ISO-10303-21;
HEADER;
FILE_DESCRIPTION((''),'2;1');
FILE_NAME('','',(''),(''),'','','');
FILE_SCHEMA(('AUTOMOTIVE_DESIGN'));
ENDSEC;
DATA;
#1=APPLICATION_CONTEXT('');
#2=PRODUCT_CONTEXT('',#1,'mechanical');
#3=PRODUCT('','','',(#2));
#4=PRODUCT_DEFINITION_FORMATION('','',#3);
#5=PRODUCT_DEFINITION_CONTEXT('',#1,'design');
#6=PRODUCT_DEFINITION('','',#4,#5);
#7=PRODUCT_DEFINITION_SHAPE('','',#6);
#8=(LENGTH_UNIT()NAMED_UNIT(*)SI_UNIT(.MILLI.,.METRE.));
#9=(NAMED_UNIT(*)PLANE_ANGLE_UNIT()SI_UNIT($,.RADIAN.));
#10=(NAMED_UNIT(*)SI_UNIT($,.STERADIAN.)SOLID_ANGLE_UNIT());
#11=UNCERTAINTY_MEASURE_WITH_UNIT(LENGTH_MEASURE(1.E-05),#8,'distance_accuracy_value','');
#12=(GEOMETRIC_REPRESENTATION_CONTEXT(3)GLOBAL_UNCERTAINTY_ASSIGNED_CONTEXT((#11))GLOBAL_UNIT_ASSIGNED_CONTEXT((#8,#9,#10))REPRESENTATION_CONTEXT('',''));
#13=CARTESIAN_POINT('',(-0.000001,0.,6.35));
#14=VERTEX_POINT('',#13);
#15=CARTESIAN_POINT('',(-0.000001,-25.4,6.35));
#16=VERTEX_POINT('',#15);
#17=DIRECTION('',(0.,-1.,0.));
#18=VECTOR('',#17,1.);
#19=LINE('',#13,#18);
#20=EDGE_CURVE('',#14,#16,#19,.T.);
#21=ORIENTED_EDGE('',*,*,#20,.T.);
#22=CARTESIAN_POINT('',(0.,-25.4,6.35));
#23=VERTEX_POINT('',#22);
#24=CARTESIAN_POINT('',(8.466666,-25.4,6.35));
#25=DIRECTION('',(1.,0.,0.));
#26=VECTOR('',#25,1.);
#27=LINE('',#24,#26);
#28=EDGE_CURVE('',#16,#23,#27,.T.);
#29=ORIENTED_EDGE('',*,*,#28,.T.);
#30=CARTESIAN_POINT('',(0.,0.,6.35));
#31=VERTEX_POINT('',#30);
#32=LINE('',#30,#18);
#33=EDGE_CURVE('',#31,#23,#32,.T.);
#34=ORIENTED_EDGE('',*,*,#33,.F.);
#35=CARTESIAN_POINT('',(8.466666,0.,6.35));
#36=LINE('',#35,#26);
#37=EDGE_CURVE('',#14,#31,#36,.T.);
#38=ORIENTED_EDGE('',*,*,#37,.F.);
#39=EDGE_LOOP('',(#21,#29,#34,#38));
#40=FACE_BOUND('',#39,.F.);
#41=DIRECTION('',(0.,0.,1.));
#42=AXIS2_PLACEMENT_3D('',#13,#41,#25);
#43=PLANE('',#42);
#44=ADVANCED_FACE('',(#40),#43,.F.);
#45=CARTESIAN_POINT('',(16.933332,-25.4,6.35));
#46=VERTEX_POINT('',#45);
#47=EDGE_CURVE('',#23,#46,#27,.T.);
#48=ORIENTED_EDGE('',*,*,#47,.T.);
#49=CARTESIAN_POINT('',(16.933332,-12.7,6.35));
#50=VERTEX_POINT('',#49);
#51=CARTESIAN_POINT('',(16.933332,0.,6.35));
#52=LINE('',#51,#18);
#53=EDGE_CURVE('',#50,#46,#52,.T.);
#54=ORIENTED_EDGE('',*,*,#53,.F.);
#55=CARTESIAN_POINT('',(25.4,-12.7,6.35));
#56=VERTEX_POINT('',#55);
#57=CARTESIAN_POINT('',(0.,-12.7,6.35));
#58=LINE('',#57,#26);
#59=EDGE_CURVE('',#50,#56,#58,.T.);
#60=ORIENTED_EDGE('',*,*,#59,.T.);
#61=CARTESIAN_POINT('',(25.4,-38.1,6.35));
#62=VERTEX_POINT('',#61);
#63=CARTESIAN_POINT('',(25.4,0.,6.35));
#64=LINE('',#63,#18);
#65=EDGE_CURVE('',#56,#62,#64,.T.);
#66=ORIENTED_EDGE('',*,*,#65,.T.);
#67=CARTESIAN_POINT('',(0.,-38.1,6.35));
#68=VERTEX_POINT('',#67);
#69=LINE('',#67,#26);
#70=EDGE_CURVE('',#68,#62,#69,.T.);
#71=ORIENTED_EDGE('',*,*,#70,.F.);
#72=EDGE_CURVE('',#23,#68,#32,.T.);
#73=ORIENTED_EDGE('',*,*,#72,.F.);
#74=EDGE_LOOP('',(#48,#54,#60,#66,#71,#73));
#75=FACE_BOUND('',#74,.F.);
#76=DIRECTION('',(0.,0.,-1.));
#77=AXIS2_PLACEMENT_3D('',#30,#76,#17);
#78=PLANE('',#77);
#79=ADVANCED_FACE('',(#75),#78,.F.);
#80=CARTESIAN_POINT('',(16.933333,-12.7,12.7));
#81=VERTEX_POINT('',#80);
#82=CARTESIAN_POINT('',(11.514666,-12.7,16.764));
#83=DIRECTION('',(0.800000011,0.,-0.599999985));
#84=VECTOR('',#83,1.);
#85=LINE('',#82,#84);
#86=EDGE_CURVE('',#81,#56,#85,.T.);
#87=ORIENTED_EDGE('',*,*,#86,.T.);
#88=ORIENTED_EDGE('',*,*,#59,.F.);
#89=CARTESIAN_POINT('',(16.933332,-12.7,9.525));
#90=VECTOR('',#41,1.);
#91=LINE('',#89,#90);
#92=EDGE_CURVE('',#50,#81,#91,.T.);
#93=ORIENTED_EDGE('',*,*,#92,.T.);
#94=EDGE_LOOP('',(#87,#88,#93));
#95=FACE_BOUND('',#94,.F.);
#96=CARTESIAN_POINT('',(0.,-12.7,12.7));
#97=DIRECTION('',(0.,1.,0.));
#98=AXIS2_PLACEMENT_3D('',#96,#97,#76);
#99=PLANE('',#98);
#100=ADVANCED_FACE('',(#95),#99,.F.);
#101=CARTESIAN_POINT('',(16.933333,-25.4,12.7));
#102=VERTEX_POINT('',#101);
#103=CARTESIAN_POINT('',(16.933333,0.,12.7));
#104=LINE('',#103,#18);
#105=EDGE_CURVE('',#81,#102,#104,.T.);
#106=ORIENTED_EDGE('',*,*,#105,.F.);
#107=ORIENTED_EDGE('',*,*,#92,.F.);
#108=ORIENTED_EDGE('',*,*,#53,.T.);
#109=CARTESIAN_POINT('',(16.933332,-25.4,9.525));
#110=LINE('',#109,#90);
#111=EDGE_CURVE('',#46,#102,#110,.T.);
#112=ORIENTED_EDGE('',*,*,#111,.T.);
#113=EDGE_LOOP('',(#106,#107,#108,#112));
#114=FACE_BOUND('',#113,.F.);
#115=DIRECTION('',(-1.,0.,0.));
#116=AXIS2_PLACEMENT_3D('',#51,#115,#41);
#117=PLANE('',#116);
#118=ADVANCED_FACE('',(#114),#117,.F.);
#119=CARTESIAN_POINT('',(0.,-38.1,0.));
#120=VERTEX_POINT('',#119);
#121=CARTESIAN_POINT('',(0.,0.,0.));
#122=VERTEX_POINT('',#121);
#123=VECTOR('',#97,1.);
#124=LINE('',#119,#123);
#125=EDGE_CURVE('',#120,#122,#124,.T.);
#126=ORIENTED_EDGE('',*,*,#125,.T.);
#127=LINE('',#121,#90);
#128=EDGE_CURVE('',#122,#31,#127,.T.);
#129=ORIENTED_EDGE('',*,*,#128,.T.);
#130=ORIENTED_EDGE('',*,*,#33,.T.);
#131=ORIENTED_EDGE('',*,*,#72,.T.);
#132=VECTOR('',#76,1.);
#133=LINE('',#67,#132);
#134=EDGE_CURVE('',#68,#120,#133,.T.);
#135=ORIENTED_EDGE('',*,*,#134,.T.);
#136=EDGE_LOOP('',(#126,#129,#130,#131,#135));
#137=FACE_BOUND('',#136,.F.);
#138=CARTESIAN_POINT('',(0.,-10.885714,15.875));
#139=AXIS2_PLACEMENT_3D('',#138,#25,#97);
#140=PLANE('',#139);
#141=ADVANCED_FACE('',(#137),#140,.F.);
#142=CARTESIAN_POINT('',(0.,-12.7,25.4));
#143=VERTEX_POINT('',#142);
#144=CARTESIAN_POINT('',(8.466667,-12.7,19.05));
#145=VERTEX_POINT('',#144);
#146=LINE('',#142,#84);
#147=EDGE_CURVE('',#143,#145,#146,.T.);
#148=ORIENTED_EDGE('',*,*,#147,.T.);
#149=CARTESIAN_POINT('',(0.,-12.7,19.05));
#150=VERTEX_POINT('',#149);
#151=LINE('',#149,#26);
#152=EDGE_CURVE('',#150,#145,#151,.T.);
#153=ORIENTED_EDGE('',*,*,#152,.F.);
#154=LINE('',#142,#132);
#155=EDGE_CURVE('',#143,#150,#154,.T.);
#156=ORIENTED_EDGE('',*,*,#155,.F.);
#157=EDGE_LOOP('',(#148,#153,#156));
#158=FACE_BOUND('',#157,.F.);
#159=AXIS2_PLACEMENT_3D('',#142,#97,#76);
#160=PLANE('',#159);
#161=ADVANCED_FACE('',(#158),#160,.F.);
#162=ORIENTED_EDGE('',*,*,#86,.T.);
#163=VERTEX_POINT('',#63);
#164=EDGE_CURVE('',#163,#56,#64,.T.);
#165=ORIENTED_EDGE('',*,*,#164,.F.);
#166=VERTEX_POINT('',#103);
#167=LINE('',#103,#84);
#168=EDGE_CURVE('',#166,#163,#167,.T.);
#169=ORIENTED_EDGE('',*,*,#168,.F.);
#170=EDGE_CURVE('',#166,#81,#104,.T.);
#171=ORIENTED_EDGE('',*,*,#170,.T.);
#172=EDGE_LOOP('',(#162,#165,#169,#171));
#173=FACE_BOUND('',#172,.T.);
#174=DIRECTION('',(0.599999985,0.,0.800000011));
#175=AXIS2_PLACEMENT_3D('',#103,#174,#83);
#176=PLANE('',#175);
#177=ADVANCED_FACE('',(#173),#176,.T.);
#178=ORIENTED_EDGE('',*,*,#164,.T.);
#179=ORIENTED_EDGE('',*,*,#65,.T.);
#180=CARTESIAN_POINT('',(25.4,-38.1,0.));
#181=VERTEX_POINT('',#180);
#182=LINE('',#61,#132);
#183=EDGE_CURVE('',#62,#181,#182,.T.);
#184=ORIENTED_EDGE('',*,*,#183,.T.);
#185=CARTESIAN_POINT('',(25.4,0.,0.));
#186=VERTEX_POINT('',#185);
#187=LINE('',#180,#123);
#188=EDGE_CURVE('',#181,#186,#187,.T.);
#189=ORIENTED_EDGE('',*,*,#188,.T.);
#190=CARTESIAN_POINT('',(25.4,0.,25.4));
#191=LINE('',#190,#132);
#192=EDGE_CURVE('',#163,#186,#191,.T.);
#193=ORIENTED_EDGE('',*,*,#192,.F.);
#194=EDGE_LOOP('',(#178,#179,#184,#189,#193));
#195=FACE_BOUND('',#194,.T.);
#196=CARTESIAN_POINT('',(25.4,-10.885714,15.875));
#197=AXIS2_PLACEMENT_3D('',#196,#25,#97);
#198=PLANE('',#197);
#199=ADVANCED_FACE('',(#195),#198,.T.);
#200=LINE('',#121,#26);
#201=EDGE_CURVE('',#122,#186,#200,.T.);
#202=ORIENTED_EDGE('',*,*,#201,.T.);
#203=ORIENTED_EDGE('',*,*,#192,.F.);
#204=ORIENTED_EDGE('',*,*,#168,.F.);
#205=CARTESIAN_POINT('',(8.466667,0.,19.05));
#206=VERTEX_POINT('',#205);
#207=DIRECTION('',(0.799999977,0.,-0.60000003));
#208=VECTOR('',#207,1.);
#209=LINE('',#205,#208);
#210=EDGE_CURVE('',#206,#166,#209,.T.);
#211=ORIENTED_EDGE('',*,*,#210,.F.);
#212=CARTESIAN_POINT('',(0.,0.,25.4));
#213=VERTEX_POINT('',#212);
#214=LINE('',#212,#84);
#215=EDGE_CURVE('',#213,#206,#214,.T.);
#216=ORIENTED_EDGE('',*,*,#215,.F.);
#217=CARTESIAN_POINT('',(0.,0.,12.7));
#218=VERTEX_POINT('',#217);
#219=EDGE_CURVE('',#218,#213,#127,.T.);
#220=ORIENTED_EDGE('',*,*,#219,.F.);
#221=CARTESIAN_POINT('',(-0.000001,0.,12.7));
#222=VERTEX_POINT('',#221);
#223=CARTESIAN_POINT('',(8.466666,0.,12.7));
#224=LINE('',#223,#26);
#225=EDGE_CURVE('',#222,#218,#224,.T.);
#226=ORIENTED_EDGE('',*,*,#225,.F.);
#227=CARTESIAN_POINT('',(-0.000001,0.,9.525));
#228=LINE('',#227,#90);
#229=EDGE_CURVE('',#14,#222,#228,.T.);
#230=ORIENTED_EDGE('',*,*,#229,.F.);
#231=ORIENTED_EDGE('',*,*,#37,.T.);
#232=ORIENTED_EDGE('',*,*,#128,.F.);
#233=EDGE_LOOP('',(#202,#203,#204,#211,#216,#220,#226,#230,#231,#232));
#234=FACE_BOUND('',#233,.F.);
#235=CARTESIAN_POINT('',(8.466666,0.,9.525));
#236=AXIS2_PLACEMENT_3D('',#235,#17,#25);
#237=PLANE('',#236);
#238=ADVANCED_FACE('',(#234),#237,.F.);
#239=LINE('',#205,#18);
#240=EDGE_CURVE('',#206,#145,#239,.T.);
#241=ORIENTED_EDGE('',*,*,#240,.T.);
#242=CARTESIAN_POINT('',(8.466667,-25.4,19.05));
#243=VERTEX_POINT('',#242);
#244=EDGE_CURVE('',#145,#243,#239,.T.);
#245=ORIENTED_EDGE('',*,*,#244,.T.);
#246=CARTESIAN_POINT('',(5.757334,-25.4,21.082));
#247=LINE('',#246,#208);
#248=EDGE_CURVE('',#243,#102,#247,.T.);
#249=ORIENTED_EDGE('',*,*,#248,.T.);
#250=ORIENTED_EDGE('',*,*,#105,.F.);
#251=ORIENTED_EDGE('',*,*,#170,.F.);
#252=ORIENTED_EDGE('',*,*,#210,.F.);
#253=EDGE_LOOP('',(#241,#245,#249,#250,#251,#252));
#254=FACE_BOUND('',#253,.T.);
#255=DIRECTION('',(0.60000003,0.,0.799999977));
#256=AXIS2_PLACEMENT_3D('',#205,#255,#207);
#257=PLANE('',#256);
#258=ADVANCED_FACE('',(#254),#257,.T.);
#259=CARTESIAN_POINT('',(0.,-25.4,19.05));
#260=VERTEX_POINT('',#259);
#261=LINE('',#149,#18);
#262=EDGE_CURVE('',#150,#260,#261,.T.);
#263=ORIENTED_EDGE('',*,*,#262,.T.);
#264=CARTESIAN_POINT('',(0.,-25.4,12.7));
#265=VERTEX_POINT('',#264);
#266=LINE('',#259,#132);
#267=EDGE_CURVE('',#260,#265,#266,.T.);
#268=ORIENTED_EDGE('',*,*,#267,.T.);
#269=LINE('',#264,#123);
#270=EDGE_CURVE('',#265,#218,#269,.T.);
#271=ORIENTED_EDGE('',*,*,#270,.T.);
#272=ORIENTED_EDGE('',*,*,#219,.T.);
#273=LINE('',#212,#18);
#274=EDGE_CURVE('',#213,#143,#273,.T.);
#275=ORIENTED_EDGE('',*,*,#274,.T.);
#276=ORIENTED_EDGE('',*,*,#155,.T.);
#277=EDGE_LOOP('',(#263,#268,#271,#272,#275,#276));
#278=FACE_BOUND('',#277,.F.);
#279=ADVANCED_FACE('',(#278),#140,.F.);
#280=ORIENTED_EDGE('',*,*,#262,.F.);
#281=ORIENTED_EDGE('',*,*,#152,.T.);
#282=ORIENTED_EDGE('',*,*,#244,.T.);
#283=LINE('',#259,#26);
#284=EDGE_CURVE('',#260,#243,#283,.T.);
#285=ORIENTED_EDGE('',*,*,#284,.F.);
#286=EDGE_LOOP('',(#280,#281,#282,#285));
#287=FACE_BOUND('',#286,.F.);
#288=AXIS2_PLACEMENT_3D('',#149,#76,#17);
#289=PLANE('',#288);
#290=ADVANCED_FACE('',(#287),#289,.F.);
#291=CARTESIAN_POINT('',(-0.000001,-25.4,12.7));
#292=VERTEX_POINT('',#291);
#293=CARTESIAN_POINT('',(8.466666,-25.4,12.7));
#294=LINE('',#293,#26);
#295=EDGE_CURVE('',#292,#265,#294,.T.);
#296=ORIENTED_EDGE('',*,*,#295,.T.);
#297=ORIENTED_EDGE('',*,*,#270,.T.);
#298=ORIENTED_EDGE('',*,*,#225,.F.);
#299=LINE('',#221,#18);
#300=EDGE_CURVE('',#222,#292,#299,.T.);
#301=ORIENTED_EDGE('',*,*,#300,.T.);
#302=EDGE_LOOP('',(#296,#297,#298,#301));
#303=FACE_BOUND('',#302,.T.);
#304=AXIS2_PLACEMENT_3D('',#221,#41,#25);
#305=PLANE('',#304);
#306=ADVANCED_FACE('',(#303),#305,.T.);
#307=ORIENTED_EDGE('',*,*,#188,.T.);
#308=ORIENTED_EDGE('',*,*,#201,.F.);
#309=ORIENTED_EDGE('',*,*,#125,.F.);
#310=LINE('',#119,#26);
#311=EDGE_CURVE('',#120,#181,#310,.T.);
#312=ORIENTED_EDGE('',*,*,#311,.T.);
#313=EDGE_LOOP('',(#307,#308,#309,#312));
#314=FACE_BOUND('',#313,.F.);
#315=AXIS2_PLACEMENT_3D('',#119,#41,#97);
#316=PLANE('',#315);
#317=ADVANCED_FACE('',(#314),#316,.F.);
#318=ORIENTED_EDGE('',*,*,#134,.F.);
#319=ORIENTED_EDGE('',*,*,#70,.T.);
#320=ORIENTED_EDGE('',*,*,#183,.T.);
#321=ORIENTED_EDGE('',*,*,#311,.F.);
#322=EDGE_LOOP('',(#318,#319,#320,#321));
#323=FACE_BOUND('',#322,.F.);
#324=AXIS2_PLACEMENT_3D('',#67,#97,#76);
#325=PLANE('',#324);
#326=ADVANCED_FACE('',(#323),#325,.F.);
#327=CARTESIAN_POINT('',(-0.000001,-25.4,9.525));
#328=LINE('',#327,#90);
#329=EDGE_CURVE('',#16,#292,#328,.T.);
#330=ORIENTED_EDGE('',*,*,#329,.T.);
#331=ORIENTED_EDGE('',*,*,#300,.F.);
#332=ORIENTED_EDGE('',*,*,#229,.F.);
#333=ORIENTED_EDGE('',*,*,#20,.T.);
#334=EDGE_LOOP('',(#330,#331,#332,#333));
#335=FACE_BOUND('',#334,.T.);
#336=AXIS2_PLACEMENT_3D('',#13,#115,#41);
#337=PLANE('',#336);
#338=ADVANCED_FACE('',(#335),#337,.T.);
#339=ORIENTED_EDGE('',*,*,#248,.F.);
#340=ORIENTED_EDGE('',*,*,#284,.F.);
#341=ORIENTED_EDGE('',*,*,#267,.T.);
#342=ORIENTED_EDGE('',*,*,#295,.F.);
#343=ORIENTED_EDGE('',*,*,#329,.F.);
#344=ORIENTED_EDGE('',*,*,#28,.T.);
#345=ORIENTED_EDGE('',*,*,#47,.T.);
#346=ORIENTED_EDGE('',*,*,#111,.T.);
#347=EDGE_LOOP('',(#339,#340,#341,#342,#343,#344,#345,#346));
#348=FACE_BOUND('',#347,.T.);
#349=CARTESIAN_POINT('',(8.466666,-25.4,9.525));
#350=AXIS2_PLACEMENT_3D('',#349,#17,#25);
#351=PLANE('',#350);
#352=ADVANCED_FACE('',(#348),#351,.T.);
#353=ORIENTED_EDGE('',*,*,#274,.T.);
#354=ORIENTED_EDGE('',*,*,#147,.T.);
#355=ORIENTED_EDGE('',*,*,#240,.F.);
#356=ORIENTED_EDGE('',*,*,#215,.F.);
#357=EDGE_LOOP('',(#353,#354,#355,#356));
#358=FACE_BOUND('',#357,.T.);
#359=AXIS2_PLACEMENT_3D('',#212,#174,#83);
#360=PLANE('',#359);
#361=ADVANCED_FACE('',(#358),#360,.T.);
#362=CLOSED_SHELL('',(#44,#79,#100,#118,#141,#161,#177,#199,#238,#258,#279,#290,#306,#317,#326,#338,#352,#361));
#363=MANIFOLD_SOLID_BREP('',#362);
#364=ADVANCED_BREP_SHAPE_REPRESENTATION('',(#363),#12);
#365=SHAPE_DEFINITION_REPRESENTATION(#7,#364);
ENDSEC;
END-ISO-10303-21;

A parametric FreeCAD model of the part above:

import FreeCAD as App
import Part
import Sketcher

V = App.Vector
Q = App.Units.Quantity

doc = App.newDocument("Part")
body = doc.addObject("PartDesign::Body", "Body")

# Sketch on YZ plane
sketch1 = body.newObject("Sketcher::SketchObject", "Sketch")
sketch1.AttachmentSupport = (doc.getObject("YZ_Plane"), [""])
sketch1.MapMode = "FlatFace"
sketch1.addGeometry([
    Part.LineSegment(V(-38, 0, 0), V(0, 0, 0)),
    Part.LineSegment(V(0, 0, 0), V(0, 6, 0)),
    Part.LineSegment(V(0, 6, 0), V(-38, 6, 0)),
    Part.LineSegment(V(-38, 6, 0), V(-38, 0, 0)),
], False)
sketch1.addConstraint([
    Sketcher.Constraint("Coincident", 0, 2, 1, 1),
    Sketcher.Constraint("Coincident", 1, 2, 2, 1),
    Sketcher.Constraint("Coincident", 2, 2, 3, 1),
    Sketcher.Constraint("Coincident", 3, 2, 0, 1),
    Sketcher.Constraint("Horizontal", 0),
    Sketcher.Constraint("Vertical", 1),
    Sketcher.Constraint("Horizontal", 2),
    Sketcher.Constraint("Vertical", 3),
    Sketcher.Constraint("Coincident", 0, 2, -1, 1),
    Sketcher.Constraint("DistanceX", 0, 1, 0, 2, Q("1.5 in")),
    Sketcher.Constraint("DistanceY", 1, 1, 1, 2, Q("0.25 in")),
])
pad1 = body.newObject("PartDesign::Pad", "Pad")
pad1.Profile = sketch1
pad1.Length = Q("1 in")

# Sketch on YZ plane
sketch2 = body.newObject("Sketcher::SketchObject", "Sketch001")
sketch2.AttachmentSupport = (doc.getObject("YZ_Plane"), [""])
sketch2.MapMode = "FlatFace"
sketch2.addGeometry([
    Part.LineSegment(V(-13, 6, 0), V(0, 6, 0)),  # 0
    Part.LineSegment(V(0, 6, 0), V(0, 25, 0)),  # 1
    Part.LineSegment(V(0, 25, 0), V(-13, 25, 0)),  # 2
    Part.LineSegment(V(-13, 25, 0), V(-13, 19, 0)),  # 3
    Part.LineSegment(V(-13, 19, 0), V(-25, 19, 0)),  # 4
    Part.LineSegment(V(-25, 19, 0), V(-25, 13, 0)),  # 5
    Part.LineSegment(V(-25, 13, 0), V(-13, 13, 0)),  # 6
    Part.LineSegment(V(-13, 13, 0), V(-13, 6, 0)),  # 7
], False)
sketch2.addConstraint([
    Sketcher.Constraint("Coincident", 0, 2, 1, 1),
    Sketcher.Constraint("Coincident", 1, 2, 2, 1),
    Sketcher.Constraint("Coincident", 2, 2, 3, 1),
    Sketcher.Constraint("Coincident", 3, 2, 4, 1),
    Sketcher.Constraint("Coincident", 4, 2, 5, 1),
    Sketcher.Constraint("Coincident", 5, 2, 6, 1),
    Sketcher.Constraint("Coincident", 6, 2, 7, 1),
    Sketcher.Constraint("Coincident", 7, 2, 0, 1),
    Sketcher.Constraint("Horizontal", 0),
    Sketcher.Constraint("Vertical", 1),
    Sketcher.Constraint("Horizontal", 2),
    Sketcher.Constraint("Vertical", 3),
    Sketcher.Constraint("Horizontal", 4),
    Sketcher.Constraint("Vertical", 5),
    Sketcher.Constraint("Horizontal", 6),
    Sketcher.Constraint("Vertical", 7),
    Sketcher.Constraint("PointOnObject", 0, 2, -2),
    Sketcher.Constraint("Vertical", 3, 2, 6, 2),
    Sketcher.Constraint("Equal", 2, 4),
    Sketcher.Constraint("Equal", 3, 5),
    Sketcher.Constraint("Equal", 5, 7),
    Sketcher.Constraint("DistanceX", 0, 1, 0, 2, Q("0.5 in")),
    Sketcher.Constraint("DistanceY", -1, 1, 1, 2, Q("1 in")),
    Sketcher.Constraint("DistanceY", 1, 1, 1, 2, Q("0.75 in")),
])
pad2 = body.newObject("PartDesign::Pad", "Pad001")
pad2.Profile = sketch2
pad2.Length = Q("1 in")

# Sketch on XZ plane
sketch3 = body.newObject("Sketcher::SketchObject", "Sketch002")
sketch3.AttachmentSupport = (doc.getObject("XZ_Plane"), [""])
sketch3.MapMode = "FlatFace"
sketch3.addGeometry([
    Part.LineSegment(V(17, 13, 0), V(25, 6, 0)),  # 0
    Part.LineSegment(V(25, 6, 0), V(25, 25, 0)),  # 1
    Part.LineSegment(V(25, 25, 0), V(0, 25, 0)),  # 2
    Part.LineSegment(V(0, 25, 0), V(8, 19, 0)),  # 3
    Part.LineSegment(V(8, 19, 0), V(17, 13, 0)),  # 4
], False)
sketch3.addConstraint([
    Sketcher.Constraint("Coincident", 0, 2, 1, 1),
    Sketcher.Constraint("Coincident", 1, 2, 2, 1),
    Sketcher.Constraint("Coincident", 2, 2, 3, 1),
    Sketcher.Constraint("Coincident", 3, 2, 4, 1),
    Sketcher.Constraint("Coincident", 4, 2, 0, 1),
    Sketcher.Constraint("Vertical", 1),
    Sketcher.Constraint("Horizontal", 2),
    Sketcher.Constraint("PointOnObject", 2, 2, -2),
    Sketcher.Constraint("Parallel", 0, 3),
    Sketcher.Constraint("Parallel", 3, 4),
    Sketcher.Constraint("Equal", 0, 3),
    Sketcher.Constraint("Equal", 3, 4),
    Sketcher.Constraint("DistanceX", 2, 2, 2, 1, Q("1 in")),
    Sketcher.Constraint("DistanceY", -1, 1, 1, 2, Q("1 in")),
    Sketcher.Constraint("DistanceY", 1, 1, 1, 2, Q("0.75 in")),
])
pocket1 = body.newObject("PartDesign::Pocket", "Pocket")
pocket1.Profile = sketch3
pocket1.Type = "ThroughAll"
pocket1.Reversed = True

# Sketch on XZ plane
sketch4 = body.newObject("Sketcher::SketchObject", "Sketch003")
sketch4.AttachmentSupport = (doc.getObject("XZ_Plane"), [""])
sketch4.MapMode = "FlatFace"
sketch4.addGeometry([
    Part.LineSegment(V(0, 13, 0), V(0, 6, 0)),
    Part.LineSegment(V(0, 6, 0), V(17, 6, 0)),
    Part.LineSegment(V(17, 6, 0), V(17, 13, 0)),
    Part.LineSegment(V(17, 13, 0), V(0, 13, 0)),
], False)
sketch4.addConstraint([
    Sketcher.Constraint("Coincident", 0, 2, 1, 1),
    Sketcher.Constraint("Coincident", 1, 2, 2, 1),
    Sketcher.Constraint("Coincident", 2, 2, 3, 1),
    Sketcher.Constraint("Coincident", 3, 2, 0, 1),
    Sketcher.Constraint("Vertical", 0),
    Sketcher.Constraint("Horizontal", 1),
    Sketcher.Constraint("Vertical", 2),
    Sketcher.Constraint("Horizontal", 3),
    Sketcher.Constraint("PointOnObject", 0, 2, -2),
    Sketcher.Constraint("DistanceY", 0, 2, 0, 1, Q("0.25 in")),
    Sketcher.Constraint("DistanceY", -1, 1, 2, 2, Q("0.5 in")),
    Sketcher.Constraint("DistanceX", 1, 1, 1, 2, 16.933333),
])
pad3 = body.newObject("PartDesign::Pad", "Pad002")
pad3.Profile = sketch4
pad3.Length = Q("1 in")

doc.recompute()
